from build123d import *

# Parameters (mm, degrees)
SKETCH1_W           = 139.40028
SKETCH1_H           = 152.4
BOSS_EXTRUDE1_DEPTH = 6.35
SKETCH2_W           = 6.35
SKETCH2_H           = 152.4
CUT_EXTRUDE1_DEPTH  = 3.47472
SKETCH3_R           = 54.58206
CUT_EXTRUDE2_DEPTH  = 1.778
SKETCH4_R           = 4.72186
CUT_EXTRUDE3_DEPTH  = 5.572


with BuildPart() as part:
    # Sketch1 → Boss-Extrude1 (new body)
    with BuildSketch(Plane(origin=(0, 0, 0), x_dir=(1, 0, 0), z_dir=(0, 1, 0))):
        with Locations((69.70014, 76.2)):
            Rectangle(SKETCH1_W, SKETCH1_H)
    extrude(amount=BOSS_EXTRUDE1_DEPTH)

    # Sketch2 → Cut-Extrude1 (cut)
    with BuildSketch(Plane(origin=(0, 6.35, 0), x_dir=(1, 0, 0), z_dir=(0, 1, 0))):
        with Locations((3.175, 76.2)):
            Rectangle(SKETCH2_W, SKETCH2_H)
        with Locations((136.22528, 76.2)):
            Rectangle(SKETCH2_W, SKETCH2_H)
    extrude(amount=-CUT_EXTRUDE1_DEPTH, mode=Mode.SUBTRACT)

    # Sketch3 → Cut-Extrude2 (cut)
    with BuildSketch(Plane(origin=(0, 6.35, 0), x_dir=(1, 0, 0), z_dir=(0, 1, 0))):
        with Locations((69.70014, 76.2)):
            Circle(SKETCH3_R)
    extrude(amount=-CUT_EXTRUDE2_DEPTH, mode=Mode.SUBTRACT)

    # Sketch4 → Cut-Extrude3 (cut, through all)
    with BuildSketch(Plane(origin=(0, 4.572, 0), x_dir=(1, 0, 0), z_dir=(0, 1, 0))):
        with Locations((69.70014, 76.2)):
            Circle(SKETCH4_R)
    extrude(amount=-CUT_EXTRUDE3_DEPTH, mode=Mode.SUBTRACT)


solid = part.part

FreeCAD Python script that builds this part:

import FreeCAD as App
import Part
import Sketcher
Q = App.Units.Quantity


def add_polygon(sketch, points):
    """Adds a closed chain of lines whose ends are joined by coincident constraints."""
    first, n = sketch.GeometryCount, len(points)
    for a, b in zip(points, points[1:] + points[:1]):
        sketch.addGeometry(Part.LineSegment(App.Vector(*a, 0), App.Vector(*b, 0)), False)
    for i in range(n):
        sketch.addConstraint(Sketcher.Constraint("Coincident", first + i, 2, first + (i + 1) % n, 1))

doc = App.newDocument("Part")
body = doc.addObject("PartDesign::Body", "Body")

# Sketch on XZ plane
sketch1 = body.newObject("Sketcher::SketchObject", "Sketch")
sketch1.AttachmentSupport = (doc.getObject("XZ_Plane"), [""])
sketch1.MapMode = "FlatFace"
add_polygon(sketch1, [(0, -152), (0, 0), (139, 0), (139, -152)])  # lines 0-3
sketch1.addConstraint([
    Sketcher.Constraint("Vertical", 0),
    Sketcher.Constraint("Horizontal", 1),
    Sketcher.Constraint("Vertical", 2),
    Sketcher.Constraint("Horizontal", 3),
    Sketcher.Constraint("Coincident", 0, 2, -1, 1),
    Sketcher.Constraint("DistanceY", 0, 1, 0, 2, Q("6 in")),
    Sketcher.Constraint("DistanceX", 1, 1, 1, 2, Q("5.4882 in")),
])
pad1 = body.newObject("PartDesign::Pad", "Pad")
pad1.Profile = sketch1
pad1.Length = Q("0.25 in")
pad1.Reversed = True

# Sketch on XZ plane
sketch2 = body.newObject("Sketcher::SketchObject", "Sketch001")
sketch2.AttachmentSupport = (doc.getObject("XZ_Plane"), [""])
sketch2.MapMode = "FlatFace"
sketch2.AttachmentOffset = App.Placement(App.Vector(0, 0, -0.25 * 25.4), App.Rotation())
add_polygon(sketch2, [(0, -152), (0, 0), (6, 0), (6, -152)])  # lines 0-3
add_polygon(sketch2, [(133, -152), (133, 0), (139, 0), (139, -152)])  # lines 4-7
sketch2.addConstraint([
    Sketcher.Constraint("Vertical", 0),
    Sketcher.Constraint("Horizontal", 1),
    Sketcher.Constraint("Vertical", 2),
    Sketcher.Constraint("Horizontal", 3),
    Sketcher.Constraint("Vertical", 4),
    Sketcher.Constraint("Horizontal", 5),
    Sketcher.Constraint("Vertical", 6),
    Sketcher.Constraint("Horizontal", 7),
    Sketcher.Constraint("Coincident", 0, 2, -1, 1),
    Sketcher.Constraint("PointOnObject", 4, 2, -1),
    Sketcher.Constraint("Horizontal", 3, 2, 6, 2),
    Sketcher.Constraint("Equal", 3, 5),
    Sketcher.Constraint("DistanceY", 0, 1, 0, 2, Q("6 in")),
    Sketcher.Constraint("DistanceX", 1, 1, 1, 2, Q("0.25 in")),
    Sketcher.Constraint("DistanceX", -1, 1, 4, 2, Q("5.2382 in")),
])
pocket1 = body.newObject("PartDesign::Pocket", "Pocket")
pocket1.Profile = sketch2
pocket1.Length = Q("0.1368 in")
pocket1.Reversed = True

# Sketch on XZ plane
sketch3 = body.newObject("Sketcher::SketchObject", "Sketch002")
sketch3.AttachmentSupport = (doc.getObject("XZ_Plane"), [""])
sketch3.MapMode = "FlatFace"
sketch3.AttachmentOffset = App.Placement(App.Vector(0, 0, -0.25 * 25.4), App.Rotation())
sketch3.addGeometry(Part.Circle(App.Vector(70, -76, 0), App.Vector(0, 0, 1), 55), False)
sketch3.addConstraint([
    Sketcher.Constraint("DistanceY", 0, 3, -1, 1, Q("3 in")),
    Sketcher.Constraint("Diameter", 0, Q("4.2978 in")),
    Sketcher.Constraint("DistanceX", -1, 1, 0, 3, Q("2.7441 in")),
])
pocket2 = body.newObject("PartDesign::Pocket", "Pocket001")
pocket2.Profile = sketch3
pocket2.Length = Q("0.07 in")
pocket2.Reversed = True

# Sketch on XZ plane
sketch4 = body.newObject("Sketcher::SketchObject", "Sketch003")
sketch4.AttachmentSupport = (doc.getObject("XZ_Plane"), [""])
sketch4.MapMode = "FlatFace"
sketch4.AttachmentOffset = App.Placement(App.Vector(0, 0, -0.18 * 25.4), App.Rotation())
sketch4.addGeometry(Part.Circle(App.Vector(69.7, -76.2, 0), App.Vector(0, 0, 1), 4.7), False)
sketch4.addConstraint([
    Sketcher.Constraint("DistanceY", 0, 3, -1, 1, Q("3 in")),
    Sketcher.Constraint("Diameter", 0, Q("0.3718 in")),
    Sketcher.Constraint("DistanceX", -1, 1, 0, 3, Q("2.7441 in")),
])
pocket3 = body.newObject("PartDesign::Pocket", "Pocket002")
pocket3.Profile = sketch4
pocket3.Type = "ThroughAll"
pocket3.Reversed = True

doc.recompute()
